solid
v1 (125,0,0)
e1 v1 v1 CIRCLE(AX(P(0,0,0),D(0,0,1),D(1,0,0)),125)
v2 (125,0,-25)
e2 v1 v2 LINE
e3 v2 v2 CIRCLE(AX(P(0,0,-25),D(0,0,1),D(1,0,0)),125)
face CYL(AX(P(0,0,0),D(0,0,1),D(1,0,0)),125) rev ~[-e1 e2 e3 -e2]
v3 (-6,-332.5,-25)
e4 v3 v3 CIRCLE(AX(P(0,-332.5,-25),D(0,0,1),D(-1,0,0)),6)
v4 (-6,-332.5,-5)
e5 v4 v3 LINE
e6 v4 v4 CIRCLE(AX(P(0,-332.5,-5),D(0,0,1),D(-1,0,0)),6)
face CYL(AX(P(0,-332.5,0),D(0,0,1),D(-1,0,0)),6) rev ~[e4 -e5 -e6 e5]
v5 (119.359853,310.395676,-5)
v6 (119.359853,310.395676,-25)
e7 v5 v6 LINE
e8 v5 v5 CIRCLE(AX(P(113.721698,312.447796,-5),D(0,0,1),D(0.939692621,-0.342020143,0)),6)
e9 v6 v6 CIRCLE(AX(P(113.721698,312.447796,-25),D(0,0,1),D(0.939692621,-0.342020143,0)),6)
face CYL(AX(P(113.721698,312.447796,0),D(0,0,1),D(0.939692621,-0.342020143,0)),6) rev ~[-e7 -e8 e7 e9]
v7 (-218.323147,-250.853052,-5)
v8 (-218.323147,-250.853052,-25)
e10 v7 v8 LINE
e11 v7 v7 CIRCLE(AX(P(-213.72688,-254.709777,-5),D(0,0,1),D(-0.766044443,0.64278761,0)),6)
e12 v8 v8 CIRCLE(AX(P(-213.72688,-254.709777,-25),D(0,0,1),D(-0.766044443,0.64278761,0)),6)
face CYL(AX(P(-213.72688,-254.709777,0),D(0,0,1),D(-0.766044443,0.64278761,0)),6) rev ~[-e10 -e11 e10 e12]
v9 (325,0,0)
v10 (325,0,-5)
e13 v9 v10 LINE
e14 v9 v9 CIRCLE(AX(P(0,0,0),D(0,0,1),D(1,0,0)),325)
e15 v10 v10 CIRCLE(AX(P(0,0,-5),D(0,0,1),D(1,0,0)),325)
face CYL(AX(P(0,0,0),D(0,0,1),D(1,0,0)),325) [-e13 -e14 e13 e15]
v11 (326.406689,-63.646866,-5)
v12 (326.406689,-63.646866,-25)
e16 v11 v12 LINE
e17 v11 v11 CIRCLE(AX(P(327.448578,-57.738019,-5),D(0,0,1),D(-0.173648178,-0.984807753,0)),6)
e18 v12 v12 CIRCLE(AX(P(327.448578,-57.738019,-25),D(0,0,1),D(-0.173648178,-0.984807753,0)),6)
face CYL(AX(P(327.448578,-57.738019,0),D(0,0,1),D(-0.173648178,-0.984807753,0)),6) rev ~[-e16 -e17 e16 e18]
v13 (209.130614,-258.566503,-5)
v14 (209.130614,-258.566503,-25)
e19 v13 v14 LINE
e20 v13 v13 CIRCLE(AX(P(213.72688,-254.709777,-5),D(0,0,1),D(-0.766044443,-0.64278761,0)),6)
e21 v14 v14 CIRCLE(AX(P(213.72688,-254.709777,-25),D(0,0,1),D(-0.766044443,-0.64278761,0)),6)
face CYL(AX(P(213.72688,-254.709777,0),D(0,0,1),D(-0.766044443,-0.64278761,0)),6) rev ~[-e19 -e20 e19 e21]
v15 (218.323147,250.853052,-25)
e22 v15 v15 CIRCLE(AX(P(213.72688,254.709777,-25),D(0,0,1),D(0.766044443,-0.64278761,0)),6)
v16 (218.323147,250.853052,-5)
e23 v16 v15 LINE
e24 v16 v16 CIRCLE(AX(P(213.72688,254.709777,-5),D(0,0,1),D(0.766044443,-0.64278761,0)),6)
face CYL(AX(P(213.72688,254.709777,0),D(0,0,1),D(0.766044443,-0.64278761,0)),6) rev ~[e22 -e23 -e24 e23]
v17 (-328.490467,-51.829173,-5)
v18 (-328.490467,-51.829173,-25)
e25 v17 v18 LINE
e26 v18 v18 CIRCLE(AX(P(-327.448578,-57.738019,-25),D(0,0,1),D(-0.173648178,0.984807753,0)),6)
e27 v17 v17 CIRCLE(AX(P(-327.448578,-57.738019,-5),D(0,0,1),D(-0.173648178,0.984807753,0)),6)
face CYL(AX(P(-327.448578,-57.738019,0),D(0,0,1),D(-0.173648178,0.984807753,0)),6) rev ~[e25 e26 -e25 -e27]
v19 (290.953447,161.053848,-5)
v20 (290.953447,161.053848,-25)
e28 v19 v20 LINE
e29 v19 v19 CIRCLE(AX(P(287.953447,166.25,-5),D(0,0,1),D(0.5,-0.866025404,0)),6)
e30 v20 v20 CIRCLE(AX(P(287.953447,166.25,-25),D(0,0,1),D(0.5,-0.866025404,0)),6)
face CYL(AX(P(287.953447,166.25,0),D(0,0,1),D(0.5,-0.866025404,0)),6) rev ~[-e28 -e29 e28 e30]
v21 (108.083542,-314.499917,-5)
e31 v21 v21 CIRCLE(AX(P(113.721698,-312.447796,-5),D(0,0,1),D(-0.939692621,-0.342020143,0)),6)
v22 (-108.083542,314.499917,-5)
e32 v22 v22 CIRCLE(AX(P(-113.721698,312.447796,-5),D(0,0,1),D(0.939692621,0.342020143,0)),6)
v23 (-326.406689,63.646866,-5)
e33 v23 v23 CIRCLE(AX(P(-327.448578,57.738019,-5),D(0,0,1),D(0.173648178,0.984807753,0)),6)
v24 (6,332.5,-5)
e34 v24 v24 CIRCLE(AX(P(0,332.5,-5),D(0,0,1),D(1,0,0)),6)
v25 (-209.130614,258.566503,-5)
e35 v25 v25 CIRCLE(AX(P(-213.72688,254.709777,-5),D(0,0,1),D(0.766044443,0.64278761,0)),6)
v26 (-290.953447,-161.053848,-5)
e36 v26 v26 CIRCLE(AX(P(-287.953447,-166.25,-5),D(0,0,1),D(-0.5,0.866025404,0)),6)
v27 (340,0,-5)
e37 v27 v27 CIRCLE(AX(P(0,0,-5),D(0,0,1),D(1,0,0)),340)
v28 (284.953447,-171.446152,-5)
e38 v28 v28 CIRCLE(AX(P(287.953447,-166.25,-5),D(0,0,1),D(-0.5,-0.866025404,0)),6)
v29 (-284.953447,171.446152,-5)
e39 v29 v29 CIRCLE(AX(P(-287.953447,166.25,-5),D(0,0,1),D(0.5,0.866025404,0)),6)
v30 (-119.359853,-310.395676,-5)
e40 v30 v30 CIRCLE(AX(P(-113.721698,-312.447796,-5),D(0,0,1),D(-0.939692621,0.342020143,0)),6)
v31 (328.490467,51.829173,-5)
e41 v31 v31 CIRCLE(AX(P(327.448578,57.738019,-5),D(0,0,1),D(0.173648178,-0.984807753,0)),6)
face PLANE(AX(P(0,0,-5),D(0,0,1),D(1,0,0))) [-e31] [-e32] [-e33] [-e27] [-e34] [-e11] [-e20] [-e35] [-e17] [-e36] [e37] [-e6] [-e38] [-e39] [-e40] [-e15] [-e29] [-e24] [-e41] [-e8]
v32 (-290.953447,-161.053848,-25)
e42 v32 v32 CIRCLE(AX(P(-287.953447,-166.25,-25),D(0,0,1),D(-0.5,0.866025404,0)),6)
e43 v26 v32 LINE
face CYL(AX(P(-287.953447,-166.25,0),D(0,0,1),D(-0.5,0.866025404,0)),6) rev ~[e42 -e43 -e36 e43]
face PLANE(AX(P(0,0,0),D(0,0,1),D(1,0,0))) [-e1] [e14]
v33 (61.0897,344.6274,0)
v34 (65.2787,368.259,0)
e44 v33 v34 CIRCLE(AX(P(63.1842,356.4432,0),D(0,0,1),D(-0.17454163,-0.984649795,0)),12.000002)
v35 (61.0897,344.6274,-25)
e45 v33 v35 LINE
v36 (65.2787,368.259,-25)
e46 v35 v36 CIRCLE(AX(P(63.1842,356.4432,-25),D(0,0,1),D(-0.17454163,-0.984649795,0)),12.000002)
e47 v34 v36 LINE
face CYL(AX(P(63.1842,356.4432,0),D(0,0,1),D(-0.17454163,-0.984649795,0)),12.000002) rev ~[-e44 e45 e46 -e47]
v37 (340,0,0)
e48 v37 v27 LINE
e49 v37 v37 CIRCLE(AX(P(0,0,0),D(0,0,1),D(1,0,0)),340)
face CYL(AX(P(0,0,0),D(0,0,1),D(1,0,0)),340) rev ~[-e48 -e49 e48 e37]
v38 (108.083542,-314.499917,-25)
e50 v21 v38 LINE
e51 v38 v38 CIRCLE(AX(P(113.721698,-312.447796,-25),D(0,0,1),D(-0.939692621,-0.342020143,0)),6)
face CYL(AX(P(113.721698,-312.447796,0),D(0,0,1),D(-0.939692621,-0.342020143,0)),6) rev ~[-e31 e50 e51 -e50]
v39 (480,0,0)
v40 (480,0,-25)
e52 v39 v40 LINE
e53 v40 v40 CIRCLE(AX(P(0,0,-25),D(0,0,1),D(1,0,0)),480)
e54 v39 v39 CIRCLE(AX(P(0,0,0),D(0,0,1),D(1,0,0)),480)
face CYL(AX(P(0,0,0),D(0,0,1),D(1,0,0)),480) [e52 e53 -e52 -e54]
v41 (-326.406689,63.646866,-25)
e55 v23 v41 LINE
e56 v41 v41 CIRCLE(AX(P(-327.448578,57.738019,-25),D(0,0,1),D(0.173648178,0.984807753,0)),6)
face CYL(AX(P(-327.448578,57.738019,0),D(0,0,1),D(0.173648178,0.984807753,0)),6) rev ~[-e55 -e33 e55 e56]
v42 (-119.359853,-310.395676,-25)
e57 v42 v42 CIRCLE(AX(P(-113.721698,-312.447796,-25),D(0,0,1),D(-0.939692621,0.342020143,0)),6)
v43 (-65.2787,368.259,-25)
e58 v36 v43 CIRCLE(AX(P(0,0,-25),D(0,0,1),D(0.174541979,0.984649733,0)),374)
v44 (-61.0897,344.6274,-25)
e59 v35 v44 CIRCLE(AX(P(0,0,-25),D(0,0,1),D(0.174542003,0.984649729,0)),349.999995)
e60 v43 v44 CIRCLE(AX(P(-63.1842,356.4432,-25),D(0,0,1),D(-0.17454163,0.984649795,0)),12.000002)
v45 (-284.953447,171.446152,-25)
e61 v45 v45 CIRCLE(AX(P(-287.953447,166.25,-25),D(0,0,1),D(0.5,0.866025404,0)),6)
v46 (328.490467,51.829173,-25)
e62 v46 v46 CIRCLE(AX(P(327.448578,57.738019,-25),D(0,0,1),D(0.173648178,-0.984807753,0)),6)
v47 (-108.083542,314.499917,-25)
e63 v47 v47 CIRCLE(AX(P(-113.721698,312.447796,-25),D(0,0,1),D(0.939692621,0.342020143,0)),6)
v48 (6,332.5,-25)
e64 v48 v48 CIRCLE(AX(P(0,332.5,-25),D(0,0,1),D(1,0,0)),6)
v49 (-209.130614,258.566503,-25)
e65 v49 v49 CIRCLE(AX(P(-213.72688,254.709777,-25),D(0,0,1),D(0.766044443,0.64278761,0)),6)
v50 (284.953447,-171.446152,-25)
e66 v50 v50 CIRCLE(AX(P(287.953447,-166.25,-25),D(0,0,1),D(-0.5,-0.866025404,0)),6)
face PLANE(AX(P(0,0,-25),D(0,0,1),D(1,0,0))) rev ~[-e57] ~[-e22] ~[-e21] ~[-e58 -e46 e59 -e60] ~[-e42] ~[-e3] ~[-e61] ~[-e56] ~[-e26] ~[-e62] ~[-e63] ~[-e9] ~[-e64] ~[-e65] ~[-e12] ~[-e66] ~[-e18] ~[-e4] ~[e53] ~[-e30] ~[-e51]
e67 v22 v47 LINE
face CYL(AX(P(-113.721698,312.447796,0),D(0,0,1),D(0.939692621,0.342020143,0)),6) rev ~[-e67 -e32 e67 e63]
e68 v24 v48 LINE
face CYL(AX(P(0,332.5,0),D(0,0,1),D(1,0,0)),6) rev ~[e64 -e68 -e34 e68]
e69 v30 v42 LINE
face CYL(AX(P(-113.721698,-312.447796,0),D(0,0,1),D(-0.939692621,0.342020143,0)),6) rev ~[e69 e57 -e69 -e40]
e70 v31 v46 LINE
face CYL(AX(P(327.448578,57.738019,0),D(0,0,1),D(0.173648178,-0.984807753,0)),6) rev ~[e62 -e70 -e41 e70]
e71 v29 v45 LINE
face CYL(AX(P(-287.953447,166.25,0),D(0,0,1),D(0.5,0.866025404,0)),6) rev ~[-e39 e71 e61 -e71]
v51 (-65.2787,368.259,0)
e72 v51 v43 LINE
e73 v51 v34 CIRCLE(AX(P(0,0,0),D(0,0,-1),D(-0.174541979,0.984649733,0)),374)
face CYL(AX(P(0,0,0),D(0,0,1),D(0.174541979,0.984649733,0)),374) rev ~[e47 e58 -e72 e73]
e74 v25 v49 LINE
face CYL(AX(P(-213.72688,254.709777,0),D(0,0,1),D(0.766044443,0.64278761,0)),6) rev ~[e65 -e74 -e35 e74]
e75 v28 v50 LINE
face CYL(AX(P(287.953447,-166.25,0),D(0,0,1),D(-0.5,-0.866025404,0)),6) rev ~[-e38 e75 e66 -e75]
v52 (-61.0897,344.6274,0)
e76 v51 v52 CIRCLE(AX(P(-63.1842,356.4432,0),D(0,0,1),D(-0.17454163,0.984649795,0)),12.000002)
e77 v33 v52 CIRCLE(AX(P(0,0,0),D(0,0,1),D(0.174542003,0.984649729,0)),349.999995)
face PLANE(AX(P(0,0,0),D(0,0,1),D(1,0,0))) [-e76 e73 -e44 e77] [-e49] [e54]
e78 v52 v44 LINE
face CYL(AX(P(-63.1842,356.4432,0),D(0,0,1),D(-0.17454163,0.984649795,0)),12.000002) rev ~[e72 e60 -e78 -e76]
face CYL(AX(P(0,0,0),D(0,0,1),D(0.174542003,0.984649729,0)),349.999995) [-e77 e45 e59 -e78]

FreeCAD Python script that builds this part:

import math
import FreeCAD as App
import Part
import Sketcher

V = App.Vector

doc = App.newDocument("Part")
params = doc.addObject("Spreadsheet::Sheet", "Params")
for row, (alias, value) in enumerate([
    ("sketch1_diameter", "960 mm"),
    ("sketch1_diameter2", "250 mm"),
    ("pad1_length", "25 mm"),
    ("sketch2_diameter", "680 mm"),
    ("sketch2_diameter2", "650 mm"),
    ("pocket1_length", "5 mm"),
    ("sketch3_radius", "12 mm"),
    ("sketch3_radius2", "374 mm"),
    ("sketch4_diameter", "12 mm"),
], start=1):
    params.set(f"A{row}", alias)
    params.set(f"B{row}", "=" + value)
    params.setAlias(f"B{row}", alias)

body = doc.addObject("PartDesign::Body", "Body")

# Sketch on XY plane
sketch1 = doc.addObject("Sketcher::SketchObject", "Sketch")
body.addObject(sketch1)
sketch1.AttachmentSupport = (doc.XY_Plane, [""])
sketch1.MapMode = "FlatFace"
sketch1.addGeometry(Part.Circle(V(0, 0, 0), V(0, 0, 1), 480), False)
sketch1.addGeometry(Part.Circle(V(0, 0, 0), V(0, 0, 1), 125), False)
sketch1.addConstraint(Sketcher.Constraint("Coincident", 0, 3, -1, 1))
sketch1.addConstraint(Sketcher.Constraint("Coincident", 1, 3, -1, 1))
sketch1.addConstraint(Sketcher.Constraint("Diameter", 0, 960.0))
sketch1.addConstraint(Sketcher.Constraint("Diameter", 1, 250.0))
sketch1.setExpression("Constraints[2]", "Params.sketch1_diameter")
sketch1.setExpression("Constraints[3]", "Params.sketch1_diameter2")
pad1 = doc.addObject("PartDesign::Pad", "Pad")
body.addObject(pad1)
pad1.Profile = sketch1
pad1.setExpression("Length", "Params.pad1_length")
pad1.Reversed = True

# Sketch on XY plane
sketch2 = doc.addObject("Sketcher::SketchObject", "Sketch001")
body.addObject(sketch2)
sketch2.AttachmentSupport = (doc.XY_Plane, [""])
sketch2.MapMode = "FlatFace"
sketch2.addGeometry(Part.Circle(V(0, 0, 0), V(0, 0, 1), 340), False)
sketch2.addGeometry(Part.Circle(V(0, 0, 0), V(0, 0, 1), 325), False)
sketch2.addConstraint(Sketcher.Constraint("Coincident", 0, 3, -1, 1))
sketch2.addConstraint(Sketcher.Constraint("Coincident", 1, 3, -1, 1))
sketch2.addConstraint(Sketcher.Constraint("Diameter", 0, 680.0))
sketch2.addConstraint(Sketcher.Constraint("Diameter", 1, 650.0))
sketch2.setExpression("Constraints[2]", "Params.sketch2_diameter")
sketch2.setExpression("Constraints[3]", "Params.sketch2_diameter2")
pocket1 = doc.addObject("PartDesign::Pocket", "Pocket")
body.addObject(pocket1)
pocket1.Profile = sketch2
pocket1.setExpression("Length", "Params.pocket1_length")

# Sketch on XY plane
sketch3 = doc.addObject("Sketcher::SketchObject", "Sketch002")
body.addObject(sketch3)
sketch3.AttachmentSupport = (doc.XY_Plane, [""])
sketch3.MapMode = "FlatFace"
sketch3.addGeometry(Part.ArcOfCircle(Part.Circle(V(63, 356, 0), V(0, 0, 1), 12), math.radians(-100), math.radians(80)), False)
sketch3.addGeometry(Part.ArcOfCircle(Part.Circle(V(0, 0, 0), V(0, 0, 1), 374), math.radians(80), math.radians(100)), False)
sketch3.addGeometry(Part.ArcOfCircle(Part.Circle(V(-63, 356, 0), V(0, 0, 1), 12), math.radians(100), math.radians(280)), False)
sketch3.addGeometry(Part.ArcOfCircle(Part.Circle(V(0, 0, 0), V(0, 0, 1), 350), math.radians(80), math.radians(100)), False)
sketch3.addConstraint(Sketcher.Constraint("Tangent", 0, 2, 1, 1))
sketch3.addConstraint(Sketcher.Constraint("Tangent", 1, 2, 2, 1))
sketch3.addConstraint(Sketcher.Constraint("Tangent", 2, 2, 3, 2))
sketch3.addConstraint(Sketcher.Constraint("Tangent", 3, 1, 0, 1))
sketch3.addConstraint(Sketcher.Constraint("Coincident", 1, 3, -1, 1))
sketch3.addConstraint(Sketcher.Constraint("Coincident", 3, 3, -1, 1))
sketch3.addConstraint(Sketcher.Constraint("Horizontal", 0, 3, 2, 3))
sketch3.addConstraint(Sketcher.Constraint("Radius", 0, 12.0))
sketch3.addConstraint(Sketcher.Constraint("Radius", 1, 374.0))
sketch3.addConstraint(Sketcher.Constraint("DistanceY", -1, 1, 0, 2, 368.259))
sketch3.setExpression("Constraints[7]", "Params.sketch3_radius")
sketch3.setExpression("Constraints[8]", "Params.sketch3_radius2")
pocket2 = doc.addObject("PartDesign::Pocket", "Pocket001")
body.addObject(pocket2)
pocket2.Profile = sketch3
pocket2.Type = "UpToFirst"

# Sketch on XY plane
sketch4 = doc.addObject("Sketcher::SketchObject", "Sketch003")
body.addObject(sketch4)
sketch4.AttachmentSupport = (doc.XY_Plane, [""])
sketch4.MapMode = "FlatFace"
sketch4.addGeometry(Part.Circle(V(0, 332, 0), V(0, 0, 1), 6), False)
sketch4.addConstraint(Sketcher.Constraint("PointOnObject", 0, 3, -2))
sketch4.addConstraint(Sketcher.Constraint("Diameter", 0, 12.0))
sketch4.addConstraint(Sketcher.Constraint("DistanceY", -1, 1, 0, 3, 332.5))
sketch4.setExpression("Constraints[1]", "Params.sketch4_diameter")
pocket3 = doc.addObject("PartDesign::Pocket", "Pocket002")
body.addObject(pocket3)
pocket3.Profile = sketch4
pocket3.Type = "ThroughAll"
doc.recompute()

polarpattern = doc.addObject("PartDesign::PolarPattern", "PolarPattern")
body.addObject(polarpattern)
polarpattern.Originals = [pocket3]
polarpattern.Axis = (doc.Z_Axis, [""])
polarpattern.Angle = 360
polarpattern.Occurrences = 18
body.Tip = polarpattern

doc.recompute()
